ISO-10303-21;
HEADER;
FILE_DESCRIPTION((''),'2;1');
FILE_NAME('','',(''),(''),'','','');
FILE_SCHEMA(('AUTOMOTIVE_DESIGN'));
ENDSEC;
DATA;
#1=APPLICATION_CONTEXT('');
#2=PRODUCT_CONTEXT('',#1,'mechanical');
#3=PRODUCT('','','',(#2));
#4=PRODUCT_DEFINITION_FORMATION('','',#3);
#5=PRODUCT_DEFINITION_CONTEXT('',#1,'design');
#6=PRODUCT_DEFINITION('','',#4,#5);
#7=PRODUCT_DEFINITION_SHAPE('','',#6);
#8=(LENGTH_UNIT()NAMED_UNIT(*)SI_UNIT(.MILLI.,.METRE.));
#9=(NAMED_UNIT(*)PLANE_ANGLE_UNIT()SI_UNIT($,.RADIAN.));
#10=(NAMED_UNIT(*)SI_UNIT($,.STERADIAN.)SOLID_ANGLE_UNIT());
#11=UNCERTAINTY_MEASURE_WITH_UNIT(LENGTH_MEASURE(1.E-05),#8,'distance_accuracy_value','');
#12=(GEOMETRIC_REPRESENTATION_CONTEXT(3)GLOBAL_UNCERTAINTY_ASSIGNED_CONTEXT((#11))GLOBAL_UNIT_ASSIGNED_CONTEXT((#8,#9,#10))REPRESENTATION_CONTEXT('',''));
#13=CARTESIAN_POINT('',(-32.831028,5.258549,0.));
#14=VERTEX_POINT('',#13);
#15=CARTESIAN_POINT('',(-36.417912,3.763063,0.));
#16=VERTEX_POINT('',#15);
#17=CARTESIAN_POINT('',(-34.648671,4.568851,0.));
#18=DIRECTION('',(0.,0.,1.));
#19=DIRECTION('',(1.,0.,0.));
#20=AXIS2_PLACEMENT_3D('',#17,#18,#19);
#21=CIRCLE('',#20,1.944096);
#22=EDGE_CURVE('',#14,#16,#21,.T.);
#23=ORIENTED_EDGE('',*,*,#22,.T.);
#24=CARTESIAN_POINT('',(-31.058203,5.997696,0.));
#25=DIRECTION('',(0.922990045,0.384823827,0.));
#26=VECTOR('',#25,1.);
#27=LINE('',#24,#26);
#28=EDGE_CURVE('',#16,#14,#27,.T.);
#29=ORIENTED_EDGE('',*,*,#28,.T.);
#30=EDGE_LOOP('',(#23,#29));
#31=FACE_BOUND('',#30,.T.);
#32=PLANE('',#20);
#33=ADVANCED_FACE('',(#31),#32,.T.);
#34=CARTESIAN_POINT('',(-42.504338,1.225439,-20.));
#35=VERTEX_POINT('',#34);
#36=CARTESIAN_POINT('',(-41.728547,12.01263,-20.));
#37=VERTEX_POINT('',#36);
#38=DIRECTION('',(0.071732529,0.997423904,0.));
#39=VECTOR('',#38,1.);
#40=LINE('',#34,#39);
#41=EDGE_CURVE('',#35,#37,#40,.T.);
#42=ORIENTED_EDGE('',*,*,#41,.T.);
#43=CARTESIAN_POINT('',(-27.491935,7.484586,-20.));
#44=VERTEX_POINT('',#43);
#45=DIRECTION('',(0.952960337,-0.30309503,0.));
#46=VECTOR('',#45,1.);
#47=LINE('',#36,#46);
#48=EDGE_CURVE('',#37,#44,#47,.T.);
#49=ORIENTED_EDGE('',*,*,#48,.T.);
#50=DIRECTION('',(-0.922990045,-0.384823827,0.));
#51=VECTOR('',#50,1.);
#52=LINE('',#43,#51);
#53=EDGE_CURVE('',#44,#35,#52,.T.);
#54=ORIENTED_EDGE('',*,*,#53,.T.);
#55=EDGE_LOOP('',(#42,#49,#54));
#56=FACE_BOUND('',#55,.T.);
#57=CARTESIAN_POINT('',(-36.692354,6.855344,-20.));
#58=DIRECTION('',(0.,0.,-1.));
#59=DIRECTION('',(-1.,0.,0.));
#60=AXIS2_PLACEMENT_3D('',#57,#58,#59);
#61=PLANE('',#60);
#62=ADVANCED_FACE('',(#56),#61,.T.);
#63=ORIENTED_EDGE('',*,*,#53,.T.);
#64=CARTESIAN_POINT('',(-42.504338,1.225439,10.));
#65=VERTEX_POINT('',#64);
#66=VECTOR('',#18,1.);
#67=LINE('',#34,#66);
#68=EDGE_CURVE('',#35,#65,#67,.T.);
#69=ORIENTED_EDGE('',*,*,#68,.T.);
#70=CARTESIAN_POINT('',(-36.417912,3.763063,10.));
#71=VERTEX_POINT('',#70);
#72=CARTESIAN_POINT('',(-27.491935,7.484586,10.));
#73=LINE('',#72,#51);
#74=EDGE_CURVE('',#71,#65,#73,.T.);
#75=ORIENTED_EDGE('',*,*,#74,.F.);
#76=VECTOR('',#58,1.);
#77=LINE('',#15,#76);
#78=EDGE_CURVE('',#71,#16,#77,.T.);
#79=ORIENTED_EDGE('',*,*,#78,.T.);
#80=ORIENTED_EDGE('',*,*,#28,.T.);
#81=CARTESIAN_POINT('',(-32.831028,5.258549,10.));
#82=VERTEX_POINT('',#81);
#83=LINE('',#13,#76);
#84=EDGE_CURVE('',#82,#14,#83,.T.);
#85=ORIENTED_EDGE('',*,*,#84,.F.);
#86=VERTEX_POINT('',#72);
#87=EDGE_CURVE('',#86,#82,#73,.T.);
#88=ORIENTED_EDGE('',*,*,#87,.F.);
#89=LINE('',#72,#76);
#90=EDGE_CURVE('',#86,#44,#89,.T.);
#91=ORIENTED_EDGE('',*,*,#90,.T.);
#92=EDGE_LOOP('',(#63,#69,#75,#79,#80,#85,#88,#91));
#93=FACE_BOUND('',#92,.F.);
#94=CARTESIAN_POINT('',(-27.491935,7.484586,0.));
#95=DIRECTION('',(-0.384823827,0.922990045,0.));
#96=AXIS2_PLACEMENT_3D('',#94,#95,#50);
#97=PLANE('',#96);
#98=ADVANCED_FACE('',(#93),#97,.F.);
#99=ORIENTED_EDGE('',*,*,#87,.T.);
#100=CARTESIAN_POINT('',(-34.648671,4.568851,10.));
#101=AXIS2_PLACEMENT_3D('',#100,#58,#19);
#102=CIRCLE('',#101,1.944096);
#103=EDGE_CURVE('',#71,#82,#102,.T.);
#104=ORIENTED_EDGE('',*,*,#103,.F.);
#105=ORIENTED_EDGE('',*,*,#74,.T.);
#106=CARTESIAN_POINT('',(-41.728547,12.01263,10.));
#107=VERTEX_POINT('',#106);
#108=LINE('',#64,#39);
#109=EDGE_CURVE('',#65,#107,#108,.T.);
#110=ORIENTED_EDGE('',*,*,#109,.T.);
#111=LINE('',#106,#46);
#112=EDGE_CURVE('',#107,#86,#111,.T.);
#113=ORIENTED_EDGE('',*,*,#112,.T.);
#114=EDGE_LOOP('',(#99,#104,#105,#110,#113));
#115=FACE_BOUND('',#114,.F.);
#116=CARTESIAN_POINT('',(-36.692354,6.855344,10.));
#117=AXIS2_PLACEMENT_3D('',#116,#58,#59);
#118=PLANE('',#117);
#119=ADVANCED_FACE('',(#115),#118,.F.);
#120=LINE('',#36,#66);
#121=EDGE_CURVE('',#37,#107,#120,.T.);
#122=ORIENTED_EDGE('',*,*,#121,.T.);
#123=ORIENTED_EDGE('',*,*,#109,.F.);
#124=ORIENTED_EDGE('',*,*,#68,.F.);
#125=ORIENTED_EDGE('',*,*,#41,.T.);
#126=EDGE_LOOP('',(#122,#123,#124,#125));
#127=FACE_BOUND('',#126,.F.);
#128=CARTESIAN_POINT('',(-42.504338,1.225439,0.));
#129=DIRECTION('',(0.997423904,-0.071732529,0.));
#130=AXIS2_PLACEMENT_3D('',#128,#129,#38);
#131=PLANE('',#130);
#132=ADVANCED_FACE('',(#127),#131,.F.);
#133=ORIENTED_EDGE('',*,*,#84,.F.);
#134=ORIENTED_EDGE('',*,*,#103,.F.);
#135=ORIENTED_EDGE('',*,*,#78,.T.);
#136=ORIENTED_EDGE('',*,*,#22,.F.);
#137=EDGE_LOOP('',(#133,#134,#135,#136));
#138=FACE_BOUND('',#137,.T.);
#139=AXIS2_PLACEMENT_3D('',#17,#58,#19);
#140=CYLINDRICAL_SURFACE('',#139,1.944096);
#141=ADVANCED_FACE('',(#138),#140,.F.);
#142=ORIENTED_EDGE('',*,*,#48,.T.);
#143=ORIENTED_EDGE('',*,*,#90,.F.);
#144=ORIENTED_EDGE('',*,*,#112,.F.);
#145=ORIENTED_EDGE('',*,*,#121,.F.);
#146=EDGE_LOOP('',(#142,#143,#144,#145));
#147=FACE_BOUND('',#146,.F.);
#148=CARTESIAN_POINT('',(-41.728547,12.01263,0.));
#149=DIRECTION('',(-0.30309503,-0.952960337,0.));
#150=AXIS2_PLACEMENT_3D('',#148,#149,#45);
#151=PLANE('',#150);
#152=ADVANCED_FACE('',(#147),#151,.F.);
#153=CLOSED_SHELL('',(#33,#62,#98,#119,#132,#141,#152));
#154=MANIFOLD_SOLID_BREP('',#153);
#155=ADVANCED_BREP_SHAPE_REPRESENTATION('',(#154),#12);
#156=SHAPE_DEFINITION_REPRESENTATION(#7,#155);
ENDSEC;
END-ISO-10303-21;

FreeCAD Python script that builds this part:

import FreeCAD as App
import Part
import Sketcher

V = App.Vector
Q = App.Units.Quantity


def add_polygon(sketch, points):
    """Adds a closed chain of lines whose ends are joined by coincident constraints."""
    first, n = sketch.GeometryCount, len(points)
    for a, b in zip(points, points[1:] + points[:1]):
        sketch.addGeometry(Part.LineSegment(App.Vector(*a, 0), App.Vector(*b, 0)), False)
    for i in range(n):
        sketch.addConstraint(Sketcher.Constraint("Coincident", first + i, 2, first + (i + 1) % n, 1))

doc = App.newDocument("Part")
params = doc.addObject("Spreadsheet::Sheet", "Params")
for row, (alias, value) in enumerate([
    ("pad1_length", "100 mm"),
    ("pad2_length", "10 mm"),
    ("pad2_length2", "20 mm"),
], start=1):
    params.set(f"A{row}", alias)
    params.set(f"B{row}", "=" + value)
    params.setAlias(f"B{row}", alias)

body = doc.addObject("PartDesign::Body", "Body")

sketch1 = body.newObject("Sketcher::SketchObject", "Sketch")
sketch1.AttachmentSupport = (doc.getObject("XY_Plane"), [""])
sketch1.MapMode = "FlatFace"
sketch1.addGeometry(Part.Circle(V(-34.6, 4.6, 0), V(0, 0, 1), 1.9), False)
sketch1.addConstraint(Sketcher.Constraint("Diameter", 0, Q("3.888192 mm")))
sketch1.addConstraint(Sketcher.Constraint("DistanceX", 0, 3, -1, 1, Q("34.648671 mm")))
sketch1.addConstraint(Sketcher.Constraint("DistanceY", -1, 1, 0, 3, Q("4.568851 mm")))
pad1 = body.newObject("PartDesign::Pad", "Pad")
pad1.Profile = sketch1
pad1.setExpression("Length", "Params.pad1_length")
body2 = doc.addObject("PartDesign::Body", "Body001")

sketch2 = body2.newObject("Sketcher::SketchObject", "Sketch001")
sketch2.AttachmentSupport = (doc.getObject("XY_Plane001"), [""])
sketch2.MapMode = "FlatFace"
add_polygon(sketch2, [(-27, 7), (-42, 12), (-43, 1)])
sketch2.addConstraint(Sketcher.Constraint("Distance", 1, Q("10.815052 mm")))
sketch2.addConstraint(Sketcher.Constraint("DistanceY", -1, 1, 0, 2, Q("12.01263 mm")))
sketch2.addConstraint(Sketcher.Constraint("DistanceY", -1, 1, 1, 2, Q("1.225439 mm")))
sketch2.addConstraint(Sketcher.Constraint("DistanceX", 0, 2, 2, 2, Q("14.236612 mm")))
sketch2.addConstraint(Sketcher.Constraint("Distance", 0, Q("14.939354 mm")))
sketch2.addConstraint(Sketcher.Constraint("DistanceX", 0, 2, -1, 1, Q("41.728547 mm")))
pad2 = body2.newObject("PartDesign::Pad", "Pad001")
pad2.Profile = sketch2
pad2.Type = "TwoLengths"
pad2.setExpression("Length", "Params.pad2_length")
pad2.setExpression("Length2", "Params.pad2_length2")
doc.recompute()

boolean = body2.newObject("PartDesign::Boolean", "Boolean")
boolean.Type = "Cut"
boolean.addObjects([body])

doc.recompute()
